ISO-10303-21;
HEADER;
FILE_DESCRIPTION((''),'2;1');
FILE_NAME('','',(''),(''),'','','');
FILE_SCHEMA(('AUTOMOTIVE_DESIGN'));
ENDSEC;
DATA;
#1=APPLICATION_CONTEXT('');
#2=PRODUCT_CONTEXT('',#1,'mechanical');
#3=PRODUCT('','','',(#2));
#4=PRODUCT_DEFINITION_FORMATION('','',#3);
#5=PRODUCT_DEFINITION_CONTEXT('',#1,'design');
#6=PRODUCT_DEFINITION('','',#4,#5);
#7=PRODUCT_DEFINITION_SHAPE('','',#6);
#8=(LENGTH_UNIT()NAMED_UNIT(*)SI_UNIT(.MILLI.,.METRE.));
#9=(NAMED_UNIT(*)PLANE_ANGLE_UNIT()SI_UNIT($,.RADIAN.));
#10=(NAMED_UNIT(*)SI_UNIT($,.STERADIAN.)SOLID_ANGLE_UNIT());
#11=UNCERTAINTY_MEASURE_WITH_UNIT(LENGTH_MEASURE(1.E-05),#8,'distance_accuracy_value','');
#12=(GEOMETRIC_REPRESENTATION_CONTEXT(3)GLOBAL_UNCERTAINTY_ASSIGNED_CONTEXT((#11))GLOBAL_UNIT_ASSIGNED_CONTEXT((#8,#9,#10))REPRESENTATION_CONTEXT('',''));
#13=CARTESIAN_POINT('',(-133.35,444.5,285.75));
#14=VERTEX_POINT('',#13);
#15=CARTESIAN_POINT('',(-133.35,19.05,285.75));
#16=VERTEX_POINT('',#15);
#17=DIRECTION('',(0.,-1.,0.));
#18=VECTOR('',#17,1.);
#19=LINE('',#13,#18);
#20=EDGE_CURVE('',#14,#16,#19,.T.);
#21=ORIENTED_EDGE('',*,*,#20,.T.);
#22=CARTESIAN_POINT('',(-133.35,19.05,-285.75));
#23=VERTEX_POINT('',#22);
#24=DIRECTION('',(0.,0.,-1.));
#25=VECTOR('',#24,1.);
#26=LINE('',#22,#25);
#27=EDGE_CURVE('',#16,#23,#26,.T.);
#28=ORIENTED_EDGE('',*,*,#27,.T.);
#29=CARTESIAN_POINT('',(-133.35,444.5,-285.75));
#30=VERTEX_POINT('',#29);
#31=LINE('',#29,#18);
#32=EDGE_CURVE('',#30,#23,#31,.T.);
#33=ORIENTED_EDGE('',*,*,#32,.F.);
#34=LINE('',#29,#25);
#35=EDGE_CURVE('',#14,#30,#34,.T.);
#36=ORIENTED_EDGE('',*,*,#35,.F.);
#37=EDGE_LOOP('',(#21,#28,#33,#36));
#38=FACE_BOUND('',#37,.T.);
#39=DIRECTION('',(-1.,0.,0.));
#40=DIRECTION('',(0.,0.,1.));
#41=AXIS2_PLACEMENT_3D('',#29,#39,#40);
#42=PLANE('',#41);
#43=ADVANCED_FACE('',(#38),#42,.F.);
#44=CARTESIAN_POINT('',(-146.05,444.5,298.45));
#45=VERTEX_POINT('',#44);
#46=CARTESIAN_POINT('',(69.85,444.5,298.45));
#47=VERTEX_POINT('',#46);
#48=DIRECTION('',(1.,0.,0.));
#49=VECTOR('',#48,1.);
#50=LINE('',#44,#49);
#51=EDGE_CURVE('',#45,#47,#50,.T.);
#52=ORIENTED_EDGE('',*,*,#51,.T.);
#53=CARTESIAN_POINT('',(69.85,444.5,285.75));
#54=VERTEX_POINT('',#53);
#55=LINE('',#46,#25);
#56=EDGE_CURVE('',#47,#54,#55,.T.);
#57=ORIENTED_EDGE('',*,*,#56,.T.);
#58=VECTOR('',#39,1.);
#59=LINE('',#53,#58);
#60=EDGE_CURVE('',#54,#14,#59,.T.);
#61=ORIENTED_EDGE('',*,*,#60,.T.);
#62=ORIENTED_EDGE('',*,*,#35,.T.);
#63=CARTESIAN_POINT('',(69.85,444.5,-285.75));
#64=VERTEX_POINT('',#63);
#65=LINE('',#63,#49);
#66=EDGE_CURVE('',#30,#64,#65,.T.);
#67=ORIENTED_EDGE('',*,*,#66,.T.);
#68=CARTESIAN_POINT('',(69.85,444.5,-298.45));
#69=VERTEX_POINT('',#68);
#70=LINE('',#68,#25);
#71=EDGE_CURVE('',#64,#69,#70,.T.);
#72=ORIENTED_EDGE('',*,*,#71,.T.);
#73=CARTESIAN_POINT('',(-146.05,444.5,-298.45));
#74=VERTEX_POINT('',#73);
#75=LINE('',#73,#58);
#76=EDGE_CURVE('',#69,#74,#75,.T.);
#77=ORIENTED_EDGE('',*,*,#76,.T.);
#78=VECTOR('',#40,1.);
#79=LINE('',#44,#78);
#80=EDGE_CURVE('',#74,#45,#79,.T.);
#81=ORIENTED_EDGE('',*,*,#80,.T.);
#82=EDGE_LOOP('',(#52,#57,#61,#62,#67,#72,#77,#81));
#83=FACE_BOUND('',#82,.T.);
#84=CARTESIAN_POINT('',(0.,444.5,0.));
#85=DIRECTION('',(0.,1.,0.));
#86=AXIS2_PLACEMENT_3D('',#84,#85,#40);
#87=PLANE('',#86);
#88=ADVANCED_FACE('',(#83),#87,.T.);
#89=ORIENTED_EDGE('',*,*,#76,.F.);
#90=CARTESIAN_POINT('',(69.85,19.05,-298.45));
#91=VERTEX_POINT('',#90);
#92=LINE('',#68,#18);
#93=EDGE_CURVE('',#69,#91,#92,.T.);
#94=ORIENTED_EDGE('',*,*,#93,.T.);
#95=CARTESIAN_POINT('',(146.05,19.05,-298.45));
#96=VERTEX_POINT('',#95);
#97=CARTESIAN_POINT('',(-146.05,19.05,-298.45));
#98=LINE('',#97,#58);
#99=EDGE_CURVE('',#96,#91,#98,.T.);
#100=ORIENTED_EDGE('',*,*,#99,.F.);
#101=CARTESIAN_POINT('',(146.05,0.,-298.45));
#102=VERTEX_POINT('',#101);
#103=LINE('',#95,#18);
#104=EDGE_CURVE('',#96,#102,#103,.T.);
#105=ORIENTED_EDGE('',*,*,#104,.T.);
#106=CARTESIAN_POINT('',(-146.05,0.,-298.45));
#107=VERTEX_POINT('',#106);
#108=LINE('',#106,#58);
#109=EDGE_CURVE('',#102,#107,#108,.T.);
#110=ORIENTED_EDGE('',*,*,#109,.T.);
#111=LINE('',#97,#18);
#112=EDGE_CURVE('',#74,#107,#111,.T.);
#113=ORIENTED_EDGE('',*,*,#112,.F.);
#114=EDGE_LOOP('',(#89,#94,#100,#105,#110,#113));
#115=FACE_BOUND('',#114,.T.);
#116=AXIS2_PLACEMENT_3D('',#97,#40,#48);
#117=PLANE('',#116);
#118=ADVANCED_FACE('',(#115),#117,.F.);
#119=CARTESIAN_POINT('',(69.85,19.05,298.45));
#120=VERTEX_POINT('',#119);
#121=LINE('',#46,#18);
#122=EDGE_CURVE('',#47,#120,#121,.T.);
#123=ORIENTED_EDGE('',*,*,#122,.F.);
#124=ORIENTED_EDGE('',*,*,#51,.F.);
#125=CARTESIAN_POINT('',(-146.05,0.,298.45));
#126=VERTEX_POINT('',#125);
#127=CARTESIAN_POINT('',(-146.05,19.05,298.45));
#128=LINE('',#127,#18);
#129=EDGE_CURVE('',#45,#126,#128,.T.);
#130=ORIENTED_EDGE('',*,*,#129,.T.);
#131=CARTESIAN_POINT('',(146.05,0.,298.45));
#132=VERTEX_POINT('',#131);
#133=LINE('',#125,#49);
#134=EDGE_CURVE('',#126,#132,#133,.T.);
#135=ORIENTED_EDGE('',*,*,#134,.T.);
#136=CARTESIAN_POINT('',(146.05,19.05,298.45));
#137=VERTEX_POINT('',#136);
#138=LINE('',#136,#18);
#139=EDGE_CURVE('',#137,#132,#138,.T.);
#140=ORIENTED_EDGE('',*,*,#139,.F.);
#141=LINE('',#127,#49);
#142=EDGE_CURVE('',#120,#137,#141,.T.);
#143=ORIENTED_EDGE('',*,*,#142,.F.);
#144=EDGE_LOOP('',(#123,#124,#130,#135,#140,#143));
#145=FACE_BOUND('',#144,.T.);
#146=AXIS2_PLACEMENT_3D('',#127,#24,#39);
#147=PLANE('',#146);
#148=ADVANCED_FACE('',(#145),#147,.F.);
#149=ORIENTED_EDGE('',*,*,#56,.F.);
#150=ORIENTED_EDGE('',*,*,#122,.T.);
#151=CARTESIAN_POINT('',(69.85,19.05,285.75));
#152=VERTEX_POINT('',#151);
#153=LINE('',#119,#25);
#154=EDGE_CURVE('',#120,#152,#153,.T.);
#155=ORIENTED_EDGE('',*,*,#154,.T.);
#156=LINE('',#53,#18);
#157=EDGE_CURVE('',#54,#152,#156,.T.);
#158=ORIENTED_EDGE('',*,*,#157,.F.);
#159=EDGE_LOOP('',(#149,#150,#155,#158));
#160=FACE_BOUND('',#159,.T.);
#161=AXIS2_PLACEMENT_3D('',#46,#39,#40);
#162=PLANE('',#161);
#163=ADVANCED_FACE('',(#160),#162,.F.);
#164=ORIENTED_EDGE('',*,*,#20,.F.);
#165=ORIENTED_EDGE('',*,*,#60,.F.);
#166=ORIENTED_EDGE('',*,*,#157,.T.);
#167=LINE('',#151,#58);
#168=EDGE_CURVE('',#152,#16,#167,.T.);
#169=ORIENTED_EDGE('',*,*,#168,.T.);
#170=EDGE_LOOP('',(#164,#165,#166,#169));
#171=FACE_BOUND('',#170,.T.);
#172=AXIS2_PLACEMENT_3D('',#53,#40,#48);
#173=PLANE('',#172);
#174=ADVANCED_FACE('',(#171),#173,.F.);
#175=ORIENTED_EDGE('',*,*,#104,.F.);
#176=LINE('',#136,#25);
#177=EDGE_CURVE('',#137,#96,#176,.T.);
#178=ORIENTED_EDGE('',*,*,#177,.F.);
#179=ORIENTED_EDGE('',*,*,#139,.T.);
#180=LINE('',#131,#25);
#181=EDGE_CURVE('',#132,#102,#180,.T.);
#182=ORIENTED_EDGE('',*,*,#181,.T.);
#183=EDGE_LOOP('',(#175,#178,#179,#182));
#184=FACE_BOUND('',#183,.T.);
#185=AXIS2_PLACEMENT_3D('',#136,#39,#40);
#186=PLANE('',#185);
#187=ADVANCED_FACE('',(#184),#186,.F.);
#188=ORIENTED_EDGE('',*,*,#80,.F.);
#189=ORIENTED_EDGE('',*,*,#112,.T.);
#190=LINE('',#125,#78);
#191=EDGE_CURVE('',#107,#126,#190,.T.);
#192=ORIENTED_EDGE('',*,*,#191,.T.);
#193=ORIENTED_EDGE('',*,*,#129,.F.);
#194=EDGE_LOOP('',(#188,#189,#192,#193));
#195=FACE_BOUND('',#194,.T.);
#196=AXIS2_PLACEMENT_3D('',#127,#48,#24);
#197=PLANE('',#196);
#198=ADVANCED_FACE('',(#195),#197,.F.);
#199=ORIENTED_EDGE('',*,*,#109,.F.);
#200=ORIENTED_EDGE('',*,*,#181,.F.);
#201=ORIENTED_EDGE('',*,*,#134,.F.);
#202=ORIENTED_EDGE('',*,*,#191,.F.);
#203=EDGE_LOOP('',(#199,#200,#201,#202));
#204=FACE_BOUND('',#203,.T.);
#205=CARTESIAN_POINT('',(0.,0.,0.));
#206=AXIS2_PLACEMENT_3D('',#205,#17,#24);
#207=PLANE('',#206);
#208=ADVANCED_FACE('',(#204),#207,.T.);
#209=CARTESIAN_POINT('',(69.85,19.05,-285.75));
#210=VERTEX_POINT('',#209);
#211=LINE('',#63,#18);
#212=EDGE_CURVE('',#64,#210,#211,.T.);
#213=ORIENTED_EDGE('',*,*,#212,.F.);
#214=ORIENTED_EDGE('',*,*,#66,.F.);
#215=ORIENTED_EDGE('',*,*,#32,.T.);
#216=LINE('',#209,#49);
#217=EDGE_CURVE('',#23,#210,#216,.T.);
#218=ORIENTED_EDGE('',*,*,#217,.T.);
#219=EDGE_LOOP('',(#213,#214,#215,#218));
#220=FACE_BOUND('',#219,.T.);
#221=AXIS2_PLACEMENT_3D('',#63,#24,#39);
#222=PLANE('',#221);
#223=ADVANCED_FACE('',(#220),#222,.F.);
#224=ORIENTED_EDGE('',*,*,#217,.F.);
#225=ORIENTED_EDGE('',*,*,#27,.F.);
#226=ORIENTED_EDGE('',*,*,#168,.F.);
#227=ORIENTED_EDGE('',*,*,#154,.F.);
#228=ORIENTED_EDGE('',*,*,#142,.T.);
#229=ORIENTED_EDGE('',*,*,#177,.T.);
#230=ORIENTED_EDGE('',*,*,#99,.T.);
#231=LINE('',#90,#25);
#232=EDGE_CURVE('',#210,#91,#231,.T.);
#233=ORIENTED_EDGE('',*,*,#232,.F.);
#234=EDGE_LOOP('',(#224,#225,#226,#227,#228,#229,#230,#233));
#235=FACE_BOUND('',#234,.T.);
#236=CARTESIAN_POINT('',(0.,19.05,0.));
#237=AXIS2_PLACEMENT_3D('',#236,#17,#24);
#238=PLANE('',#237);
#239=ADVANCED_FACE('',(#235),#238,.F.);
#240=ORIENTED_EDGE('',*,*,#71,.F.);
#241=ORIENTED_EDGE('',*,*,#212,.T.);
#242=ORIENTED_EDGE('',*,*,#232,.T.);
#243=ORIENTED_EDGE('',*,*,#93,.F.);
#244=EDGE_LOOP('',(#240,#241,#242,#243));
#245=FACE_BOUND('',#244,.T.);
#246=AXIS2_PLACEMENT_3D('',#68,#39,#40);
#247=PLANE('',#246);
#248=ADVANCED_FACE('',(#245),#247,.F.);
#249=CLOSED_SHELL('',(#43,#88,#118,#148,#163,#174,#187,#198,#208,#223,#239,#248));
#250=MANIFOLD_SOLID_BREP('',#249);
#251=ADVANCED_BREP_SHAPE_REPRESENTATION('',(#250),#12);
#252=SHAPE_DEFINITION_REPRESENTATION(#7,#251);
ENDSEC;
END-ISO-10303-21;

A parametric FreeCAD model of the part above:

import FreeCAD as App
import Part
import Sketcher

V = App.Vector
Q = App.Units.Quantity

doc = App.newDocument("Part")
body = doc.addObject("PartDesign::Body", "Body")

# Sketch on XZ plane
sketch1 = body.newObject("Sketcher::SketchObject", "Sketch")
sketch1.AttachmentSupport = (doc.getObject("XZ_Plane"), [""])
sketch1.MapMode = "FlatFace"
sketch1.addGeometry([
    Part.LineSegment(V(-146.05, -298.45, 0), V(-146.05, 298.45, 0)),
    Part.LineSegment(V(-146.05, 298.45, 0), V(146.05, 298.45, 0)),
    Part.LineSegment(V(146.05, 298.45, 0), V(146.05, -298.45, 0)),
    Part.LineSegment(V(146.05, -298.45, 0), V(-146.05, -298.45, 0)),
], False)
sketch1.addConstraint([
    Sketcher.Constraint("Coincident", 0, 2, 1, 1),
    Sketcher.Constraint("Coincident", 1, 2, 2, 1),
    Sketcher.Constraint("Coincident", 2, 2, 3, 1),
    Sketcher.Constraint("Coincident", 3, 2, 0, 1),
    Sketcher.Constraint("Vertical", 0),
    Sketcher.Constraint("Horizontal", 1),
    Sketcher.Constraint("Vertical", 2),
    Sketcher.Constraint("Horizontal", 3),
    Sketcher.Constraint("Symmetric", 0, 2, 2, 2, -1, 1),
    Sketcher.Constraint("DistanceX", 1, 1, 1, 2, Q("11.5 in")),
    Sketcher.Constraint("DistanceY", 0, 1, 0, 2, Q("23.5 in")),
])
pad1 = body.newObject("PartDesign::Pad", "Pad")
pad1.Profile = sketch1
pad1.Length = Q("0.75 in")
pad1.Reversed = True

# Sketch on XZ plane
sketch2 = body.newObject("Sketcher::SketchObject", "Sketch001")
sketch2.AttachmentSupport = (doc.getObject("XZ_Plane"), [""])
sketch2.MapMode = "FlatFace"
sketch2.AttachmentOffset = App.Placement(V(0, 0, -0.75 * 25.4), App.Rotation())
sketch2.addGeometry([
    Part.LineSegment(V(-146.05, -298.45, 0), V(-146.05, 298.45, 0)),  # 0
    Part.LineSegment(V(-146.05, 298.45, 0), V(69.85, 298.45, 0)),  # 1
    Part.LineSegment(V(69.85, 298.45, 0), V(69.85, 285.75, 0)),  # 2
    Part.LineSegment(V(69.85, 285.75, 0), V(-133.35, 285.75, 0)),  # 3
    Part.LineSegment(V(-133.35, 285.75, 0), V(-133.35, -285.75, 0)),  # 4
    Part.LineSegment(V(-133.35, -285.75, 0), V(69.85, -285.75, 0)),  # 5
    Part.LineSegment(V(69.85, -285.75, 0), V(69.85, -298.45, 0)),  # 6
    Part.LineSegment(V(69.85, -298.45, 0), V(-146.05, -298.45, 0)),  # 7
], False)
sketch2.addConstraint([
    Sketcher.Constraint("Coincident", 0, 2, 1, 1),
    Sketcher.Constraint("Coincident", 1, 2, 2, 1),
    Sketcher.Constraint("Coincident", 2, 2, 3, 1),
    Sketcher.Constraint("Coincident", 3, 2, 4, 1),
    Sketcher.Constraint("Coincident", 4, 2, 5, 1),
    Sketcher.Constraint("Coincident", 5, 2, 6, 1),
    Sketcher.Constraint("Coincident", 6, 2, 7, 1),
    Sketcher.Constraint("Coincident", 7, 2, 0, 1),
    Sketcher.Constraint("Vertical", 0),
    Sketcher.Constraint("Horizontal", 1),
    Sketcher.Constraint("Vertical", 2),
    Sketcher.Constraint("Horizontal", 3),
    Sketcher.Constraint("Vertical", 4),
    Sketcher.Constraint("Horizontal", 5),
    Sketcher.Constraint("Vertical", 6),
    Sketcher.Constraint("Horizontal", 7),
    Sketcher.Constraint("Symmetric", 2, 2, 5, 2, -1),
    Sketcher.Constraint("Equal", 2, 6),
    Sketcher.Constraint("DistanceX", 3, 2, 3, 1, Q("8 in")),
    Sketcher.Constraint("DistanceX", 1, 1, 1, 2, Q("8.5 in")),
    Sketcher.Constraint("DistanceY", 0, 1, 0, 2, Q("23.5 in")),
    Sketcher.Constraint("DistanceY", 2, 2, 2, 1, Q("0.5 in")),
    Sketcher.Constraint("DistanceX", 0, 2, -1, 1, Q("5.75 in")),
])
pad2 = body.newObject("PartDesign::Pad", "Pad001")
pad2.Profile = sketch2
pad2.Length = Q("16.75 in")
pad2.Reversed = True

doc.recompute()
